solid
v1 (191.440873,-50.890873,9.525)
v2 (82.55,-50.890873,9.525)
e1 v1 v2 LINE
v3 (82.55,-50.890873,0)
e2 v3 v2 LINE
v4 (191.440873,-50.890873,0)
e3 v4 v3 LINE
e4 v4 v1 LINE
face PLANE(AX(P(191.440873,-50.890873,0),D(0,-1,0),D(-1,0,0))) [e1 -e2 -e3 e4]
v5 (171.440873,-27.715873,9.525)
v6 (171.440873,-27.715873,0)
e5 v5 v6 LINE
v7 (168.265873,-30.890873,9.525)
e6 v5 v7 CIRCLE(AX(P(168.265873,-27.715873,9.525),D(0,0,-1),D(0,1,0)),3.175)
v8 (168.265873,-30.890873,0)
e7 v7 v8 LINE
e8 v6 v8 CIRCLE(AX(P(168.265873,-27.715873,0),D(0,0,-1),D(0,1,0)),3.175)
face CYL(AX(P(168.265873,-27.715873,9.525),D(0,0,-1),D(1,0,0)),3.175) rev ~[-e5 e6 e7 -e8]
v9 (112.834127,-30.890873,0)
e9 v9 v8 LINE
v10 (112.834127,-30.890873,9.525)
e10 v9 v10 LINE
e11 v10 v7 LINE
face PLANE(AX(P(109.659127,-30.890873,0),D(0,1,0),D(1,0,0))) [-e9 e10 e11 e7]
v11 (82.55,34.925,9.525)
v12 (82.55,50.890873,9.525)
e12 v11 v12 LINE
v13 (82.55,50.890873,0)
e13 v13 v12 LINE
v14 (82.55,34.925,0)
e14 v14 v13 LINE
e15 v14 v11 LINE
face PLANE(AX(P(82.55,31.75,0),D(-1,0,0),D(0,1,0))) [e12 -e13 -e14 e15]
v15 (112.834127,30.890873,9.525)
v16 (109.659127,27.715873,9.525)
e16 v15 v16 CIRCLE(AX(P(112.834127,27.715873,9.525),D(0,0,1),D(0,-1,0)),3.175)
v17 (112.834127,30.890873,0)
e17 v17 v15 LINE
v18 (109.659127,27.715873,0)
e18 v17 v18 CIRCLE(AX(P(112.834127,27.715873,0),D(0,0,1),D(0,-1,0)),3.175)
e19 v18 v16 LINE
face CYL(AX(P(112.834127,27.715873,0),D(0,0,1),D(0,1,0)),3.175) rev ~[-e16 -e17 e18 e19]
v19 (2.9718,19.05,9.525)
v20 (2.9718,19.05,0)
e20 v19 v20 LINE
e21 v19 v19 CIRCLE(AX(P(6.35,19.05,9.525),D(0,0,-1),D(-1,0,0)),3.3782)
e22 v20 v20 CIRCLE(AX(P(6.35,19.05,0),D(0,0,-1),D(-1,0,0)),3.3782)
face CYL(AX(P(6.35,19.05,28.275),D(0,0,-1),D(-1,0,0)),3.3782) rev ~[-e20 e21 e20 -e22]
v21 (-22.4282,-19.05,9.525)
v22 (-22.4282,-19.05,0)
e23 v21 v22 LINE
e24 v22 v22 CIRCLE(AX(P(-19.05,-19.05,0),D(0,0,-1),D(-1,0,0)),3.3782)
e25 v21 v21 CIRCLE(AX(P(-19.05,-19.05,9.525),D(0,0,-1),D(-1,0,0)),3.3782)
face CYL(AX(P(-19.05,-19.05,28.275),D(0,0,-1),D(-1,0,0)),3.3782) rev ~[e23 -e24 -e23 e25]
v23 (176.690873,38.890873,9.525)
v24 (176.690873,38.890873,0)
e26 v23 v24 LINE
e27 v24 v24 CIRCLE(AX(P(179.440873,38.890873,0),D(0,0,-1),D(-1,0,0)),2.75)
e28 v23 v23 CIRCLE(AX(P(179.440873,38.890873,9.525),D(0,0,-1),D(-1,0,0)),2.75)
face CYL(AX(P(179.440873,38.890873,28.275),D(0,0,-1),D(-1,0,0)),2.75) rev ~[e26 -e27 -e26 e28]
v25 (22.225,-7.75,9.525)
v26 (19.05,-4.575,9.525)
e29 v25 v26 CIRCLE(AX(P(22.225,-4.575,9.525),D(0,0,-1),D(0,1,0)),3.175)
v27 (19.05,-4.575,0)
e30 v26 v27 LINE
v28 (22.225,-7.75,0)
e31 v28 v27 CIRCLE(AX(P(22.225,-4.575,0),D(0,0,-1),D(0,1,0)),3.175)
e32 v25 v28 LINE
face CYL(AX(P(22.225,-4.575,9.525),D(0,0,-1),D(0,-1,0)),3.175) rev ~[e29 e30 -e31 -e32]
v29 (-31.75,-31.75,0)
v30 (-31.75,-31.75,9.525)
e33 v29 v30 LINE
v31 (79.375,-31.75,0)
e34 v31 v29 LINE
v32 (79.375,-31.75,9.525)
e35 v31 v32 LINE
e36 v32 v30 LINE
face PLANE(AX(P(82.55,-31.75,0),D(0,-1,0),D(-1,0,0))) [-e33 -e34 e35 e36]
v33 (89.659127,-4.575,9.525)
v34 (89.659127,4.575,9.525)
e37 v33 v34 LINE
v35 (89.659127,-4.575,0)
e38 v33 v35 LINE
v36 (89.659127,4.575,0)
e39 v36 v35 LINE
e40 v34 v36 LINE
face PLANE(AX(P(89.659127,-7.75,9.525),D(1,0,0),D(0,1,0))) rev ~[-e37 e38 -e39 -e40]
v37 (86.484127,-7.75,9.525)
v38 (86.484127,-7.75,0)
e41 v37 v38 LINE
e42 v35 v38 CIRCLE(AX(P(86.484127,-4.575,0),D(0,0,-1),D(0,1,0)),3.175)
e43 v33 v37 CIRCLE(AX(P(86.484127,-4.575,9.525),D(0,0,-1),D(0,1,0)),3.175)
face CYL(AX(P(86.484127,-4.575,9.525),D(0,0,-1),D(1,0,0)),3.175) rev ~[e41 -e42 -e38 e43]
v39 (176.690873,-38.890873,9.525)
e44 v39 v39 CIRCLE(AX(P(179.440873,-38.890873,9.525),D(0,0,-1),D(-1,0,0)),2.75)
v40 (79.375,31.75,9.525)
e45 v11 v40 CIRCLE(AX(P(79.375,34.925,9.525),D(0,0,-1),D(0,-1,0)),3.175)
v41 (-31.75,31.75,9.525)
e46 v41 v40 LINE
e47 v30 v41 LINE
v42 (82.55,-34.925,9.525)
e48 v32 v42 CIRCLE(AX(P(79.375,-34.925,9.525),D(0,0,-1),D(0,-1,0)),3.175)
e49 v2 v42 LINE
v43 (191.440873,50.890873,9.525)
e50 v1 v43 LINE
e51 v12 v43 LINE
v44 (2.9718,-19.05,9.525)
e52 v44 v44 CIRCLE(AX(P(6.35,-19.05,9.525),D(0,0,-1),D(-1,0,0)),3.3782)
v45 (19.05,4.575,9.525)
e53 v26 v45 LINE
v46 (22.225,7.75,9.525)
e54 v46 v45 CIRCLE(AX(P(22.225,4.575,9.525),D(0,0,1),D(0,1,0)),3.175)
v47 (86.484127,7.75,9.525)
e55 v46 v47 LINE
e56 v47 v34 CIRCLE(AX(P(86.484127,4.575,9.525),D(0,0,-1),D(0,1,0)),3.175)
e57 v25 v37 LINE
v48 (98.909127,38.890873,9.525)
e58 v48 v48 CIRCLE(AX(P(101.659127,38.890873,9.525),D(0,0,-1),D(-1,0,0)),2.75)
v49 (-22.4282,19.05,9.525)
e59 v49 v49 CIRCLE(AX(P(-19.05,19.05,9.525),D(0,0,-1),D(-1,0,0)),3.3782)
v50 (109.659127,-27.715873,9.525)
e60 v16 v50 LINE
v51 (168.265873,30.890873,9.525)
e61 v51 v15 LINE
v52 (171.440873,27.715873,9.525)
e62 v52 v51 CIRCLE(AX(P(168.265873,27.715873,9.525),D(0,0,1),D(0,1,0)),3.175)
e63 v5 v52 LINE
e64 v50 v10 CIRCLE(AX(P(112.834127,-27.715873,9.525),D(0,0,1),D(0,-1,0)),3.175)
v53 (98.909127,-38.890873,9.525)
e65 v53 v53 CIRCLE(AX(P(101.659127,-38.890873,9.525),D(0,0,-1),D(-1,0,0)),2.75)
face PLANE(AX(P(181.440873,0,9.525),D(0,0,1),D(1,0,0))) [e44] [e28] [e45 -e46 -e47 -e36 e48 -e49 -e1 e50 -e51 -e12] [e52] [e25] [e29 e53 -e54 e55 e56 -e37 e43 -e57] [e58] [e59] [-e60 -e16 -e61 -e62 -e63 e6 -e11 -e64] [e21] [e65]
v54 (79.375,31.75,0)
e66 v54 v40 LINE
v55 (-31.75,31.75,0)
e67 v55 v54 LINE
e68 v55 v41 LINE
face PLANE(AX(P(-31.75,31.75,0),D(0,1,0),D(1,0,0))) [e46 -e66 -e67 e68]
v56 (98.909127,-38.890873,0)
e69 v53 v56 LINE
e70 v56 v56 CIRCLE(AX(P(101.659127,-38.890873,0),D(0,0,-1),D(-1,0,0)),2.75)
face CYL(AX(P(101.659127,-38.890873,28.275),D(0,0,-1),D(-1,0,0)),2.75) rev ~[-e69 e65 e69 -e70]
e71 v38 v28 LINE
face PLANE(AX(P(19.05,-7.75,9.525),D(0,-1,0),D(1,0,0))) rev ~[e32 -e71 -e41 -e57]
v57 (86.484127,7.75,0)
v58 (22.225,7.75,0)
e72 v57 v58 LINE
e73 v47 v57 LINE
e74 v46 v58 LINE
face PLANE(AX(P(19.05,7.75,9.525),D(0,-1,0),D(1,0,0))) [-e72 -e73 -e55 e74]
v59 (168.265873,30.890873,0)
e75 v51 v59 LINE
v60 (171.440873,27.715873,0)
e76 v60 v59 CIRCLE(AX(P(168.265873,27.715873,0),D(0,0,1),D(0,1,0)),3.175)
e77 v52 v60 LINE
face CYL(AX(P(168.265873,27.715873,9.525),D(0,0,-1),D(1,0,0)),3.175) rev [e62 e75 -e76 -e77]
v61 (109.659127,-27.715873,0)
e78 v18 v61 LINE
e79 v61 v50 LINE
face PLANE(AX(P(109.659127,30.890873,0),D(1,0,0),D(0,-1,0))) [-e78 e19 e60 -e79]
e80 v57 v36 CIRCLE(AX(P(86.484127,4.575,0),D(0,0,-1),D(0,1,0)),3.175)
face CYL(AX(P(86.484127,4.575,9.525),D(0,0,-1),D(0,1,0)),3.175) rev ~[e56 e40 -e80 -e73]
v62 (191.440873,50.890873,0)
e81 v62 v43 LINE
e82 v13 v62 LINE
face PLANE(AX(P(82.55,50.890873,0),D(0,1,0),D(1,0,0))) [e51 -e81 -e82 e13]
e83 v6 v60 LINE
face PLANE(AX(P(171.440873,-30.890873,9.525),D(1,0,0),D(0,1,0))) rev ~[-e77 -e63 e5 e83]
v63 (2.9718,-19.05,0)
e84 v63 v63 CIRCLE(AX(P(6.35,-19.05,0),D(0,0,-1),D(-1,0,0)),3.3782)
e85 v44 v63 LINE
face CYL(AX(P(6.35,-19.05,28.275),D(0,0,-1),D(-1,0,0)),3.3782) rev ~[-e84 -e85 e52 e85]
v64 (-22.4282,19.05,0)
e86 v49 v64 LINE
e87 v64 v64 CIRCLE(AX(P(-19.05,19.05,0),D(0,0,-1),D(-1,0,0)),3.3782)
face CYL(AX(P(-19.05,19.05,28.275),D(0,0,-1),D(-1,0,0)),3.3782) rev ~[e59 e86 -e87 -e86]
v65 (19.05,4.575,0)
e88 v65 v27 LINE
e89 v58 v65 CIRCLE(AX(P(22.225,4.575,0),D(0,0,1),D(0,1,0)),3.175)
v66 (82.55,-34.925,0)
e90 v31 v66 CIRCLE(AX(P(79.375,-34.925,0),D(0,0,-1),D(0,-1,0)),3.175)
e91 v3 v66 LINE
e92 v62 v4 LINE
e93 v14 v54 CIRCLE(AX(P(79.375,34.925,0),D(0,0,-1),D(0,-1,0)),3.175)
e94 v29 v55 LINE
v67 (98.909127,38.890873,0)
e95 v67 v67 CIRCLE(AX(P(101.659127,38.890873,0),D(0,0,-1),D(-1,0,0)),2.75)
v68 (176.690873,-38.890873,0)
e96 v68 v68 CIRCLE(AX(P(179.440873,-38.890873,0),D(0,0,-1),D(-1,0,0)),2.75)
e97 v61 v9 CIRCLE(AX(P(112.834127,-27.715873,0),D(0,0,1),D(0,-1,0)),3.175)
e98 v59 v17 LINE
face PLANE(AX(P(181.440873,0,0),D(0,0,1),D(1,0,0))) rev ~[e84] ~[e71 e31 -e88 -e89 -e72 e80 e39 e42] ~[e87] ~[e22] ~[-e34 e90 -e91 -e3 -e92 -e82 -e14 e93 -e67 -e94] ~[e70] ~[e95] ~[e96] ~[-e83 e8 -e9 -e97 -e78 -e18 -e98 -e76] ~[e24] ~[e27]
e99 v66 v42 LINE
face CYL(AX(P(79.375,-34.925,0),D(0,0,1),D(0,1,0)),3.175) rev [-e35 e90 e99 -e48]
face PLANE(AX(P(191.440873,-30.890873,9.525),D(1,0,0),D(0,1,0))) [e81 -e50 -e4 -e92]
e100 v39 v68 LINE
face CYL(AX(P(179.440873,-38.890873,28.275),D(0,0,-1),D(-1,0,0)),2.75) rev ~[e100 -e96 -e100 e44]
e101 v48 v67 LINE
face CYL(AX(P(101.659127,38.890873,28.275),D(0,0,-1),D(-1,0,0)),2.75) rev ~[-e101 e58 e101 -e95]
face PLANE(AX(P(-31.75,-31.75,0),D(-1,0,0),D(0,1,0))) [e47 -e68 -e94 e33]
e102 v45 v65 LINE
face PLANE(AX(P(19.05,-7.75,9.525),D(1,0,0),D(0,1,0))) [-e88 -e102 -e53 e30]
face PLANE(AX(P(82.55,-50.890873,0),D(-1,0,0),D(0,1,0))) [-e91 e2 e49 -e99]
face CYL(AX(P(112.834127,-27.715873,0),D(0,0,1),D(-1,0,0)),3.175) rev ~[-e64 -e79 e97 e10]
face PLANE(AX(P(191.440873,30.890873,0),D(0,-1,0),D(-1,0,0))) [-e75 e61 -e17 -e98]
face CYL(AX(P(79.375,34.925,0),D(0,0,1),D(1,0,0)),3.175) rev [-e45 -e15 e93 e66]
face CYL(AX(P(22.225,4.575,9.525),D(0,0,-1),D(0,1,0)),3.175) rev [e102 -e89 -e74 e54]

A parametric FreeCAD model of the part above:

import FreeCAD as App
import Part
import Sketcher
from FreeCAD import Vector
Q = App.Units.Quantity


def edges_at(feature, points):
    """Names of the edges that pass closest to the given points."""
    edges = feature.Shape.Edges
    near = lambda p: min(range(len(edges)), key=lambda i: edges[i].distToShape(Part.Vertex(*p))[0])
    return sorted({f"Edge{near(p) + 1}" for p in points})

doc = App.newDocument("Part")
params = doc.addObject("Spreadsheet::Sheet", "Params")
for row, (alias, value) in enumerate([
    ("sketch1_width", "4.5 in"),
    ("sketch1_height", "2.5 in"),
    ("pad1_length", "0.375 in"),
    ("hole_diameter", "5.5 mm"),
    ("hole_depth", "18.75 mm"),
    ("fillet_radius", "0.125 in"),
    ("sketch3_diameter", "0.266 in"),
    ("hole2_diameter", "0.266 in"),
    ("hole2_depth", "18.75 mm"),
    ("fillet2_radius", "0.125 in"),
    ("pad2_length", "0.375 in"),
    ("fillet3_radius", "0.125 in"),
], start=1):
    params.set(f"A{row}", alias)
    params.set(f"B{row}", "=" + value)
    params.setAlias(f"B{row}", alias)

body = doc.addObject("PartDesign::Body", "Body")

# Sketch on XY plane
sketch1 = body.newObject("Sketcher::SketchObject", "Sketch")
sketch1.AttachmentSupport = (doc.getObject("XY_Plane"), [""])
sketch1.MapMode = "FlatFace"
sketch1.addGeometry(Part.LineSegment(Vector(82.55, 50.890873, 0), Vector(82.55, 31.75, 0)), False)
sketch1.addGeometry(Part.LineSegment(Vector(82.55, 31.75, 0), Vector(-31.75, 31.75, 0)), False)
sketch1.addGeometry(Part.LineSegment(Vector(-31.75, 31.75, 0), Vector(-31.75, -31.75, 0)), False)
sketch1.addGeometry(Part.LineSegment(Vector(-31.75, -31.75, 0), Vector(82.55, -31.75, 0)), False)
sketch1.addGeometry(Part.LineSegment(Vector(82.55, -31.75, 0), Vector(82.55, -50.890873, 0)), False)
sketch1.addGeometry(Part.LineSegment(Vector(82.55, -50.890873, 0), Vector(191.440873, -50.890873, 0)), False)
sketch1.addGeometry(Part.LineSegment(Vector(191.440873, -50.890873, 0), Vector(191.440873, -30.890873, 0)), False)
sketch1.addGeometry(Part.LineSegment(Vector(191.440873, -30.890873, 0), Vector(109.659127, -30.890873, 0)), False)
sketch1.addGeometry(Part.LineSegment(Vector(109.659127, -30.890873, 0), Vector(109.659127, 30.890873, 0)), False)
sketch1.addGeometry(Part.LineSegment(Vector(109.659127, 30.890873, 0), Vector(191.440873, 30.890873, 0)), False)
sketch1.addGeometry(Part.LineSegment(Vector(191.440873, 30.890873, 0), Vector(191.440873, 50.890873, 0)), False)
sketch1.addGeometry(Part.LineSegment(Vector(191.440873, 50.890873, 0), Vector(82.55, 50.890873, 0)), False)
sketch1.addConstraint(Sketcher.Constraint("Coincident", 0, 2, 1, 1))
sketch1.addConstraint(Sketcher.Constraint("Coincident", 1, 2, 2, 1))
sketch1.addConstraint(Sketcher.Constraint("Coincident", 2, 2, 3, 1))
sketch1.addConstraint(Sketcher.Constraint("Coincident", 3, 2, 4, 1))
sketch1.addConstraint(Sketcher.Constraint("Coincident", 4, 2, 5, 1))
sketch1.addConstraint(Sketcher.Constraint("Coincident", 5, 2, 6, 1))
sketch1.addConstraint(Sketcher.Constraint("Coincident", 6, 2, 7, 1))
sketch1.addConstraint(Sketcher.Constraint("Coincident", 7, 2, 8, 1))
sketch1.addConstraint(Sketcher.Constraint("Coincident", 8, 2, 9, 1))
sketch1.addConstraint(Sketcher.Constraint("Coincident", 9, 2, 10, 1))
sketch1.addConstraint(Sketcher.Constraint("Coincident", 10, 2, 11, 1))
sketch1.addConstraint(Sketcher.Constraint("Coincident", 11, 2, 0, 1))
sketch1.addConstraint(Sketcher.Constraint("Vertical", 0))
sketch1.addConstraint(Sketcher.Constraint("Horizontal", 1))
sketch1.addConstraint(Sketcher.Constraint("Vertical", 2))
sketch1.addConstraint(Sketcher.Constraint("Horizontal", 3))
sketch1.addConstraint(Sketcher.Constraint("Vertical", 4))
sketch1.addConstraint(Sketcher.Constraint("Horizontal", 5))
sketch1.addConstraint(Sketcher.Constraint("Vertical", 6))
sketch1.addConstraint(Sketcher.Constraint("Horizontal", 7))
sketch1.addConstraint(Sketcher.Constraint("Vertical", 8))
sketch1.addConstraint(Sketcher.Constraint("Horizontal", 9))
sketch1.addConstraint(Sketcher.Constraint("Vertical", 10))
sketch1.addConstraint(Sketcher.Constraint("Horizontal", 11))
sketch1.addConstraint(Sketcher.Constraint("Symmetric", 0, 2, 3, 2, -1))
sketch1.addConstraint(Sketcher.Constraint("Symmetric", 6, 2, 9, 2, -1))
sketch1.addConstraint(Sketcher.Constraint("Equal", 0, 4))
sketch1.addConstraint(Sketcher.Constraint("DistanceX", 1, 2, 1, 1, Q("4.5 in")))
sketch1.addConstraint(Sketcher.Constraint("DistanceY", 2, 2, 2, 1, Q("2.5 in")))
sketch1.addConstraint(Sketcher.Constraint("DistanceX", -1, 1, 0, 2, Q("3.25 in")))
sketch1.addConstraint(Sketcher.Constraint("DistanceY", 6, 1, 6, 2, 20.0))
sketch1.addConstraint(Sketcher.Constraint("DistanceX", 5, 1, 5, 2, 108.890873))
sketch1.addConstraint(Sketcher.Constraint("DistanceX", 7, 2, 7, 1, 81.781746))
sketch1.addConstraint(Sketcher.Constraint("DistanceY", 0, 2, 0, 1, 19.140873))
sketch1.setExpression("Constraints[27]", "Params.sketch1_width")
sketch1.setExpression("Constraints[28]", "Params.sketch1_height")
pad1 = body.newObject("PartDesign::Pad", "Pad")
pad1.Profile = sketch1
pad1.setExpression("Length", "Params.pad1_length")

# Sketch on XY plane
sketch2 = body.newObject("Sketcher::SketchObject", "Sketch001")
sketch2.AttachmentSupport = (doc.getObject("XY_Plane"), [""])
sketch2.MapMode = "FlatFace"
sketch2.AttachmentOffset = App.Placement(Vector(0, 0, 0.375 * 25.4), App.Rotation())
sketch2.addGeometry(Part.Circle(Vector(179.440873, 38.890873, 0), Vector(0, 0, 1), 2.75), False)
sketch2.addGeometry(Part.Circle(Vector(179.440873, -38.890873, 0), Vector(0, 0, 1), 2.75), False)
sketch2.addGeometry(Part.Circle(Vector(101.659127, 38.890873, 0), Vector(0, 0, 1), 2.75), False)
sketch2.addGeometry(Part.Circle(Vector(101.659127, -38.890873, 0), Vector(0, 0, 1), 2.75), False)
sketch2.addConstraint(Sketcher.Constraint("Equal", 0, 1))
sketch2.addConstraint(Sketcher.Constraint("Equal", 1, 2))
sketch2.addConstraint(Sketcher.Constraint("Equal", 2, 3))
sketch2.addConstraint(Sketcher.Constraint("Symmetric", 0, 3, 1, 3, -1))
sketch2.addConstraint(Sketcher.Constraint("Symmetric", 2, 3, 3, 3, -1))
sketch2.addConstraint(Sketcher.Constraint("Horizontal", 0, 3, 2, 3))
sketch2.addConstraint(Sketcher.Constraint("Diameter", 0, 5.5))
sketch2.addConstraint(Sketcher.Constraint("DistanceX", -1, 1, 0, 3, 179.440873))
sketch2.addConstraint(Sketcher.Constraint("DistanceY", -1, 1, 0, 3, 38.890873))
sketch2.addConstraint(Sketcher.Constraint("DistanceX", -1, 1, 2, 3, 101.659127))
doc.recompute()
hole = body.newObject("PartDesign::Hole", "Hole")
hole.Profile = sketch2
hole.ThreadType = "None"
hole.setExpression("Diameter", "Params.hole_diameter")
hole.DepthType = "Dimension"
hole.setExpression("Depth", "Params.hole_depth")
hole.DrillPoint = "Angled"
hole.DrillPointAngle = 118
doc.recompute()

fillet = body.newObject("PartDesign::Fillet", "Fillet")
fillet.Base = (hole, edges_at(hole, [
    (82.55, 31.75, 4.763),
    (109.659, 30.891, 4.763),
    (109.659, -30.891, 4.763),
    (82.55, -31.75, 4.763),
]))
fillet.setExpression("Radius", "Params.fillet_radius")

# Sketch on XY plane
sketch3 = body.newObject("Sketcher::SketchObject", "Sketch002")
sketch3.AttachmentSupport = (doc.getObject("XY_Plane"), [""])
sketch3.MapMode = "FlatFace"
sketch3.AttachmentOffset = App.Placement(Vector(0, 0, 0.375 * 25.4), App.Rotation())
sketch3.addGeometry(Part.Circle(Vector(-19.05, 19.05, 0), Vector(0, 0, 1), 3.3782), False)
sketch3.addGeometry(Part.Circle(Vector(6.35, 19.05, 0), Vector(0, 0, 1), 3.3782), False)
sketch3.addGeometry(Part.Circle(Vector(6.35, -19.05, 0), Vector(0, 0, 1), 3.3782), False)
sketch3.addGeometry(Part.Circle(Vector(-19.05, -19.05, 0), Vector(0, 0, 1), 3.3782), False)
sketch3.addConstraint(Sketcher.Constraint("Equal", 0, 1))
sketch3.addConstraint(Sketcher.Constraint("Equal", 1, 2))
sketch3.addConstraint(Sketcher.Constraint("Equal", 2, 3))
sketch3.addConstraint(Sketcher.Constraint("Symmetric", 1, 3, 2, 3, -1))
sketch3.addConstraint(Sketcher.Constraint("Symmetric", 0, 3, 3, 3, -1))
sketch3.addConstraint(Sketcher.Constraint("Horizontal", 0, 3, 1, 3))
sketch3.addConstraint(Sketcher.Constraint("Diameter", 0, Q("0.266 in")))
sketch3.addConstraint(Sketcher.Constraint("DistanceX", 0, 3, 1, 3, Q("1 in")))
sketch3.addConstraint(Sketcher.Constraint("DistanceY", 2, 3, 1, 3, Q("1.5 in")))
sketch3.addConstraint(Sketcher.Constraint("DistanceX", 0, 3, -1, 1, Q("0.75 in")))
sketch3.setExpression("Constraints[6]", "Params.sketch3_diameter")
doc.recompute()
hole2 = body.newObject("PartDesign::Hole", "Hole001")
hole2.Profile = sketch3
hole2.ThreadType = "None"
hole2.setExpression("Diameter", "Params.hole2_diameter")
hole2.DepthType = "Dimension"
hole2.setExpression("Depth", "Params.hole2_depth")
hole2.DrillPoint = "Angled"
hole2.DrillPointAngle = 118

# Sketch on XY plane
sketch4 = body.newObject("Sketcher::SketchObject", "Sketch003")
sketch4.AttachmentSupport = (doc.getObject("XY_Plane"), [""])
sketch4.MapMode = "FlatFace"
sketch4.AttachmentOffset = App.Placement(Vector(0, 0, 0.375 * 25.4), App.Rotation())
sketch4.addGeometry(Part.LineSegment(Vector(19.05, 7.75, 0), Vector(19.05, -7.75, 0)), False)
sketch4.addGeometry(Part.LineSegment(Vector(19.05, -7.75, 0), Vector(89.659127, -7.75, 0)), False)
sketch4.addGeometry(Part.LineSegment(Vector(89.659127, -7.75, 0), Vector(89.659127, 7.75, 0)), False)
sketch4.addGeometry(Part.LineSegment(Vector(89.659127, 7.75, 0), Vector(19.05, 7.75, 0)), False)
sketch4.addConstraint(Sketcher.Constraint("Coincident", 0, 2, 1, 1))
sketch4.addConstraint(Sketcher.Constraint("Coincident", 1, 2, 2, 1))
sketch4.addConstraint(Sketcher.Constraint("Coincident", 2, 2, 3, 1))
sketch4.addConstraint(Sketcher.Constraint("Coincident", 3, 2, 0, 1))
sketch4.addConstraint(Sketcher.Constraint("Vertical", 0))
sketch4.addConstraint(Sketcher.Constraint("Horizontal", 1))
sketch4.addConstraint(Sketcher.Constraint("Vertical", 2))
sketch4.addConstraint(Sketcher.Constraint("Horizontal", 3))
sketch4.addConstraint(Sketcher.Constraint("DistanceX", -1, 1, 0, 2, Q("0.75 in")))
sketch4.addConstraint(Sketcher.Constraint("DistanceY", 0, 2, 0, 1, 15.5))
sketch4.addConstraint(Sketcher.Constraint("DistanceY", 0, 2, -1, 1, 7.75))
sketch4.addConstraint(Sketcher.Constraint("DistanceX", 1, 1, 1, 2, 70.609127))
pocket1 = body.newObject("PartDesign::Pocket", "Pocket")
pocket1.Profile = sketch4
pocket1.Type = "ThroughAll"
doc.recompute()

fillet2 = body.newObject("PartDesign::Fillet", "Fillet001")
fillet2.Base = (pocket1, edges_at(pocket1, [
    (19.05, -7.75, 4.763),
    (19.05, 7.75, 4.763),
    (89.659, 7.75, 4.763),
    (89.659, -7.75, 4.763),
]))
fillet2.setExpression("Radius", "Params.fillet2_radius")

# Sketch on XY plane
sketch5 = body.newObject("Sketcher::SketchObject", "Sketch004")
sketch5.AttachmentSupport = (doc.getObject("XY_Plane"), [""])
sketch5.MapMode = "FlatFace"
sketch5.AttachmentOffset = App.Placement(Vector(0, 0, 0.375 * 25.4), App.Rotation())
sketch5.addGeometry(Part.LineSegment(Vector(171.440873, 30.890873, 0), Vector(171.440873, -30.890873, 0)), False)
sketch5.addGeometry(Part.LineSegment(Vector(171.440873, -30.890873, 0), Vector(191.440873, -30.890873, 0)), False)
sketch5.addGeometry(Part.LineSegment(Vector(191.440873, -30.890873, 0), Vector(191.440873, 30.890873, 0)), False)
sketch5.addGeometry(Part.LineSegment(Vector(191.440873, 30.890873, 0), Vector(171.440873, 30.890873, 0)), False)
sketch5.addConstraint(Sketcher.Constraint("Coincident", 0, 2, 1, 1))
sketch5.addConstraint(Sketcher.Constraint("Coincident", 1, 2, 2, 1))
sketch5.addConstraint(Sketcher.Constraint("Coincident", 2, 2, 3, 1))
sketch5.addConstraint(Sketcher.Constraint("Coincident", 3, 2, 0, 1))
sketch5.addConstraint(Sketcher.Constraint("Vertical", 0))
sketch5.addConstraint(Sketcher.Constraint("Horizontal", 1))
sketch5.addConstraint(Sketcher.Constraint("Vertical", 2))
sketch5.addConstraint(Sketcher.Constraint("Horizontal", 3))
sketch5.addConstraint(Sketcher.Constraint("DistanceX", 1, 1, 1, 2, 20.0))
sketch5.addConstraint(Sketcher.Constraint("DistanceY", 0, 2, 0, 1, 61.781746))
sketch5.addConstraint(Sketcher.Constraint("DistanceX", -1, 1, 0, 2, 171.440873))
sketch5.addConstraint(Sketcher.Constraint("DistanceY", 0, 2, -1, 1, 30.890873))
pad2 = body.newObject("PartDesign::Pad", "Pad001")
pad2.Profile = sketch5
pad2.setExpression("Length", "Params.pad2_length")
pad2.Reversed = True
doc.recompute()

fillet3 = body.newObject("PartDesign::Fillet", "Fillet002")
fillet3.Base = (pad2, edges_at(pad2, [(171.441, 30.891, 4.763), (171.441, -30.891, 4.763)]))
fillet3.setExpression("Radius", "Params.fillet3_radius")

doc.recompute()
